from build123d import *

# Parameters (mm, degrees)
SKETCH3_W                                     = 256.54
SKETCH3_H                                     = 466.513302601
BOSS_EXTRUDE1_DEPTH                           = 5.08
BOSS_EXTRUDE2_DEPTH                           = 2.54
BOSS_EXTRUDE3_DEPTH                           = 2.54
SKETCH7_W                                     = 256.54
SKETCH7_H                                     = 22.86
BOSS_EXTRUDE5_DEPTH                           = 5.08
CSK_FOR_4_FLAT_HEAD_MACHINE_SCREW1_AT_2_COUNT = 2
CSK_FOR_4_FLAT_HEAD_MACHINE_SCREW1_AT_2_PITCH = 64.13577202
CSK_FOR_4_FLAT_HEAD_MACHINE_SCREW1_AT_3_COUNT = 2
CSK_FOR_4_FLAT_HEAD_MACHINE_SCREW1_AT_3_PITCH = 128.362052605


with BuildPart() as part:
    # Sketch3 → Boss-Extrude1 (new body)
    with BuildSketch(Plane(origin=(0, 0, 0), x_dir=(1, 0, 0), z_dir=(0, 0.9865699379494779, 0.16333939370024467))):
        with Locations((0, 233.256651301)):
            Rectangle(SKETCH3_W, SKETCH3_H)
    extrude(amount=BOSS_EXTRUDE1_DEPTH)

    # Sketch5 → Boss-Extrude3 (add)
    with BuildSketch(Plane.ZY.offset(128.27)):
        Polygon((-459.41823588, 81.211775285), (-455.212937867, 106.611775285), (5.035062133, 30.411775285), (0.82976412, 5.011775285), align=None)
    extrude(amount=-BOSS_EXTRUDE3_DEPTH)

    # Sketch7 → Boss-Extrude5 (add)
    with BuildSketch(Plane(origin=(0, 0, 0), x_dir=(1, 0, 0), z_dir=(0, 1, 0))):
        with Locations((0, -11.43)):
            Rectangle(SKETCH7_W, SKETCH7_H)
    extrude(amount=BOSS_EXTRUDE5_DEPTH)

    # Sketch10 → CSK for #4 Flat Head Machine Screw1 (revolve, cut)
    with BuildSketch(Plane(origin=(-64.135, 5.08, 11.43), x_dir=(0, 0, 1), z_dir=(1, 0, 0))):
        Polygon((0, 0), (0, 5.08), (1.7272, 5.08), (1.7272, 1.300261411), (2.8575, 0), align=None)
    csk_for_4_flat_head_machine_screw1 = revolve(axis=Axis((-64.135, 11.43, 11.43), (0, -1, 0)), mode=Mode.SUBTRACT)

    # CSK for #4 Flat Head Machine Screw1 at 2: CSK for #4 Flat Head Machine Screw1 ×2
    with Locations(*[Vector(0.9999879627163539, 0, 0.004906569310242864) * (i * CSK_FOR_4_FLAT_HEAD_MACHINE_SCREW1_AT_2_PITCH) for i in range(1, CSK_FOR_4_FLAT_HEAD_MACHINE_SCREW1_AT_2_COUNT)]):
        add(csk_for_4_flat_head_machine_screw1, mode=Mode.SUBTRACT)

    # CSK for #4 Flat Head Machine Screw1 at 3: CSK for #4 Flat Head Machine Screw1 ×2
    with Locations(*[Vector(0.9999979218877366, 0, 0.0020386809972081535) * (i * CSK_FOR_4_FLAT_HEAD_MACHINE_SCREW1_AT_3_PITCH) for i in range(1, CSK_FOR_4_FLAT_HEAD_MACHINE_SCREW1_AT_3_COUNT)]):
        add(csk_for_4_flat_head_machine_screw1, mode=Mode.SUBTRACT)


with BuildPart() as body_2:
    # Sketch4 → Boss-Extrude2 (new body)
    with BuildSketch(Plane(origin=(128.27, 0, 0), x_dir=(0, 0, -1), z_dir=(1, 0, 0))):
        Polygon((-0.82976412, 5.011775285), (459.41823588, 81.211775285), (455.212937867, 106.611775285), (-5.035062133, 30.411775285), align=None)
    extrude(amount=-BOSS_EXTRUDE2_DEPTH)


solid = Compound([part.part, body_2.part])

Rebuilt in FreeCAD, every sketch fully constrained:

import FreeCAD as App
import Part
import Sketcher
from FreeCAD import Vector
Q = App.Units.Quantity


def add_polygon(sketch, points):
    """Adds a closed chain of lines whose ends are joined by coincident constraints."""
    first, n = sketch.GeometryCount, len(points)
    for a, b in zip(points, points[1:] + points[:1]):
        sketch.addGeometry(Part.LineSegment(App.Vector(*a, 0), App.Vector(*b, 0)), False)
    for i in range(n):
        sketch.addConstraint(Sketcher.Constraint("Coincident", first + i, 2, first + (i + 1) % n, 1))

doc = App.newDocument("Part")
body = doc.addObject("PartDesign::Body", "Body")

sketch1 = doc.addObject("Sketcher::SketchObject", "Sketch")
body.addObject(sketch1)
sketch1.Placement = App.Placement(Vector(0, 0, 0), App.Rotation(Vector(1, 0, 0), Vector(0, 0.163339394, -0.986569938), Vector(0, 0.986569938, 0.163339394), "ZXY"))
add_polygon(sketch1, [(-128.27, 466.513303), (-128.27, 0), (128.27, 0), (128.27, 466.513303)])
sketch1.addConstraint([
    Sketcher.Constraint("Vertical", 0),
    Sketcher.Constraint("Horizontal", 1),
    Sketcher.Constraint("Vertical", 2),
    Sketcher.Constraint("Horizontal", 3),
    Sketcher.Constraint("Symmetric", 0, 2, 1, 2, -1, 1),
    Sketcher.Constraint("DistanceX", 1, 1, 1, 2, Q("10.1 in")),
    Sketcher.Constraint("DistanceY", 0, 2, 0, 1, 466.513303),
])
pad1 = doc.addObject("PartDesign::Pad", "Pad")
body.addObject(pad1)
pad1.Profile = sketch1
pad1.Length = Q("0.2 in")

sketch2 = doc.addObject("Sketcher::SketchObject", "Sketch001")
body.addObject(sketch2)
sketch2.AttachmentSupport = (doc.YZ_Plane, [""])
sketch2.MapMode = "FlatFace"
sketch2.AttachmentOffset = App.Placement(Vector(0, 0, -5.05 * 25.4), App.Rotation())
add_polygon(sketch2, [(106.611775, -455.212938), (81.211775, -459.418236), (5.011775, 0.829764), (30.411775, 5.035062)])
sketch2.addConstraint([
    Sketcher.Constraint("Perpendicular", 0, 1),
    Sketcher.Constraint("Perpendicular", 1, 2),
    Sketcher.Constraint("Perpendicular", 2, 3),
    Sketcher.Constraint("DistanceX", 1, 2, 0, 2, Q("3 in")),
    Sketcher.Constraint("DistanceX", 1, 2, 2, 2, Q("1 in")),
    Sketcher.Constraint("DistanceY", 0, 2, 1, 2, Q("18.12 in")),
    Sketcher.Constraint("DistanceX", -1, 1, 0, 2, 81.211775),
    Sketcher.Constraint("DistanceY", 0, 2, -1, 1, 459.418236),
])
pad2 = doc.addObject("PartDesign::Pad", "Pad001")
body.addObject(pad2)
pad2.Profile = sketch2
pad2.Length = Q("0.1 in")

sketch3 = doc.addObject("Sketcher::SketchObject", "Sketch002")
body.addObject(sketch3)
sketch3.AttachmentSupport = (doc.XZ_Plane, [""])
sketch3.MapMode = "FlatFace"
add_polygon(sketch3, [(-128.27, 0), (-128.27, 22.86), (128.27, 22.86), (128.27, 0)])
sketch3.addConstraint([
    Sketcher.Constraint("Vertical", 0),
    Sketcher.Constraint("Horizontal", 1),
    Sketcher.Constraint("Vertical", 2),
    Sketcher.Constraint("Horizontal", 3),
    Sketcher.Constraint("Symmetric", 2, 2, 3, 2, -1, 1),
    Sketcher.Constraint("DistanceX", 1, 1, 1, 2, Q("10.1 in")),
    Sketcher.Constraint("DistanceY", 0, 1, 0, 2, Q("0.9 in")),
])
pad3 = doc.addObject("PartDesign::Pad", "Pad002")
body.addObject(pad3)
pad3.Profile = sketch3
pad3.Length = Q("0.2 in")
pad3.Reversed = True

sketch4 = doc.addObject("Sketcher::SketchObject", "Sketch003")
body.addObject(sketch4)
sketch4.AttachmentSupport = (doc.YZ_Plane, [""])
sketch4.MapMode = "FlatFace"
sketch4.AttachmentOffset = App.Placement(Vector(0, 0, -2.525 * 25.4), App.Rotation())
add_polygon(sketch4, [(0, 11.43), (5.08, 11.43), (5.08, 14.2875), (3.779739, 13.1572), (0, 13.1572)])
sketch4.addGeometry(Part.LineSegment(Vector(5.08, 11.43, 0), Vector(0, 11.43, 0)), True)
sketch4.addConstraint([
    Sketcher.Constraint("Horizontal", 0),
    Sketcher.Constraint("Vertical", 1),
    Sketcher.Constraint("Horizontal", 3),
    Sketcher.Constraint("Vertical", 4),
    Sketcher.Constraint("Horizontal", 5),
    Sketcher.Constraint("Coincident", 5, 1, 0, 2),
    Sketcher.Constraint("PointOnObject", 3, 2, -2),
    Sketcher.Constraint("PointOnObject", 5, 2, -2),
    Sketcher.Constraint("DistanceX", 0, 1, 0, 2, Q("0.2 in")),
    Sketcher.Constraint("Angle", 2, Q("-139 deg")),
    Sketcher.Constraint("DistanceY", 4, 2, 4, 1, Q("0.068 in")),
    Sketcher.Constraint("DistanceY", -1, 1, 0, 2, Q("0.45 in")),
    Sketcher.Constraint("DistanceY", 1, 1, 1, 2, Q("0.1125 in")),
])
groove = doc.addObject("PartDesign::Groove", "Groove")
body.addObject(groove)
groove.Profile = sketch4
groove.ReferenceAxis = (sketch4, ["Axis0"])
groove.Angle = 360
doc.recompute()

datumline = doc.addObject("PartDesign::Line", "DatumLine")
body.addObject(datumline)
datumline.Placement = App.Placement(Vector(0, 0, 0), App.Rotation(Vector(0, 0, 1), Vector(0.999987963, 0, 0.004906569)))
linearpattern = doc.addObject("PartDesign::LinearPattern", "LinearPattern")
body.addObject(linearpattern)
linearpattern.Originals = [groove]
linearpattern.Direction = (datumline, [""])
linearpattern.Mode = "offset"
linearpattern.Offset = 64.135772
linearpattern.Occurrences = 2
body.Tip = linearpattern
doc.recompute()

datumline2 = doc.addObject("PartDesign::Line", "DatumLine001")
body.addObject(datumline2)
datumline2.Placement = App.Placement(Vector(0, 0, 0), App.Rotation(Vector(0, 0, 1), Vector(0.999997922, 0, 0.002038681)))
linearpattern2 = doc.addObject("PartDesign::LinearPattern", "LinearPattern001")
body.addObject(linearpattern2)
linearpattern2.Originals = [groove]
linearpattern2.Direction = (datumline2, [""])
linearpattern2.Mode = "offset"
linearpattern2.Offset = 128.362053
linearpattern2.Occurrences = 2
body.Tip = linearpattern2
body2 = doc.addObject("PartDesign::Body", "Body001")

sketch5 = doc.addObject("Sketcher::SketchObject", "Sketch004")
body2.addObject(sketch5)
sketch5.AttachmentSupport = (doc.getObject("YZ_Plane001"), [""])
sketch5.MapMode = "FlatFace"
sketch5.AttachmentOffset = App.Placement(Vector(0, 0, 5.05 * 25.4), App.Rotation())
add_polygon(sketch5, [(5.011775, 0.829764), (81.211775, -459.418236), (106.611775, -455.212938), (30.411775, 5.035062)])
sketch5.addConstraint([
    Sketcher.Constraint("Perpendicular", 0, 1),
    Sketcher.Constraint("Perpendicular", 1, 2),
    Sketcher.Constraint("Perpendicular", 2, 3),
    Sketcher.Constraint("DistanceX", 0, 2, 1, 2, Q("1 in")),
    Sketcher.Constraint("DistanceX", 2, 2, 1, 2, Q("3 in")),
    Sketcher.Constraint("DistanceY", 1, 2, 2, 2, Q("18.12 in")),
    Sketcher.Constraint("DistanceX", -1, 1, 0, 2, 81.211775),
    Sketcher.Constraint("DistanceY", 0, 2, -1, 1, 459.418236),
])
pad4 = doc.addObject("PartDesign::Pad", "Pad003")
body2.addObject(pad4)
pad4.Profile = sketch5
pad4.Length = Q("0.1 in")
pad4.Reversed = True

doc.recompute()
